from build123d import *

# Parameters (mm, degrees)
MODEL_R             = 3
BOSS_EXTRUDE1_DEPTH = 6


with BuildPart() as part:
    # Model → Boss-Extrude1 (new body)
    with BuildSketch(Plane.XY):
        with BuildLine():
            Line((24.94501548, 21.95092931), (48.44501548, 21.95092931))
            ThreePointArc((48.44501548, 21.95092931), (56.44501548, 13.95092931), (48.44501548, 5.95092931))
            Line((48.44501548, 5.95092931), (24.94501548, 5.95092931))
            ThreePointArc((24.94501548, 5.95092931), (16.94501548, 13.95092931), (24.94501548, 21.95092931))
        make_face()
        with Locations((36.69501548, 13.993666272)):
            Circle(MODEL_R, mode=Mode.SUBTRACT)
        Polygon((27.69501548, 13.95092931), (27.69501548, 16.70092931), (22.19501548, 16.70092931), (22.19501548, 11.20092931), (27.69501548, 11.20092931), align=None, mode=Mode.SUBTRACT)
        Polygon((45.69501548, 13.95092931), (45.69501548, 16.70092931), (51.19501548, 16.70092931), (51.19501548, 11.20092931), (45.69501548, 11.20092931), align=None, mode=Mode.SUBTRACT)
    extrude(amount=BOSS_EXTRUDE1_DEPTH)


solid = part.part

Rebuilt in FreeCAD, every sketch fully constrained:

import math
import FreeCAD as App
import Part
import Sketcher

V = App.Vector
Q = App.Units.Quantity

doc = App.newDocument("Part")
body = doc.addObject("PartDesign::Body", "Body")

# Sketch on XY plane
sketch1 = body.newObject("Sketcher::SketchObject", "Sketch")
sketch1.AttachmentSupport = (doc.getObject("XY_Plane"), [""])
sketch1.MapMode = "FlatFace"
sketch1.addGeometry(Part.LineSegment(V(48.4, 22, 0), V(24.9, 22, 0)), False)
sketch1.addGeometry(Part.ArcOfCircle(Part.Circle(V(24.9, 14, 0), V(0, 0, 1), 8), math.radians(90), math.radians(270)), False)
sketch1.addGeometry(Part.LineSegment(V(24.9, 6, 0), V(48.4, 6, 0)), False)
sketch1.addGeometry(Part.ArcOfCircle(Part.Circle(V(48.4, 14, 0), V(0, 0, 1), 8), math.radians(-90), math.radians(90)), False)
sketch1.addGeometry(Part.LineSegment(V(45.7, 16.7, 0), V(51.2, 16.7, 0)), False)
sketch1.addGeometry(Part.LineSegment(V(51.2, 16.7, 0), V(51.2, 11.2, 0)), False)
sketch1.addGeometry(Part.LineSegment(V(51.2, 11.2, 0), V(45.7, 11.2, 0)), False)
sketch1.addGeometry(Part.LineSegment(V(45.7, 11.2, 0), V(45.7, 16.7, 0)), False)
sketch1.addGeometry(Part.LineSegment(V(27.7, 11.2, 0), V(22.2, 11.2, 0)), False)
sketch1.addGeometry(Part.LineSegment(V(22.2, 11.2, 0), V(22.2, 16.7, 0)), False)
sketch1.addGeometry(Part.LineSegment(V(22.2, 16.7, 0), V(27.7, 16.7, 0)), False)
sketch1.addGeometry(Part.LineSegment(V(27.7, 16.7, 0), V(27.7, 11.2, 0)), False)
sketch1.addGeometry(Part.Circle(V(36.7, 14, 0), V(0, 0, 1), 3), False)
sketch1.addConstraint(Sketcher.Constraint("Tangent", 0, 2, 1, 1))
sketch1.addConstraint(Sketcher.Constraint("Tangent", 1, 2, 2, 1))
sketch1.addConstraint(Sketcher.Constraint("Tangent", 2, 2, 3, 1))
sketch1.addConstraint(Sketcher.Constraint("Tangent", 3, 2, 0, 1))
sketch1.addConstraint(Sketcher.Constraint("Coincident", 4, 2, 5, 1))
sketch1.addConstraint(Sketcher.Constraint("Coincident", 5, 2, 6, 1))
sketch1.addConstraint(Sketcher.Constraint("Coincident", 6, 2, 7, 1))
sketch1.addConstraint(Sketcher.Constraint("Coincident", 7, 2, 4, 1))
sketch1.addConstraint(Sketcher.Constraint("Coincident", 8, 2, 9, 1))
sketch1.addConstraint(Sketcher.Constraint("Coincident", 9, 2, 10, 1))
sketch1.addConstraint(Sketcher.Constraint("Coincident", 10, 2, 11, 1))
sketch1.addConstraint(Sketcher.Constraint("Coincident", 11, 2, 8, 1))
sketch1.addConstraint(Sketcher.Constraint("Horizontal", 0))
sketch1.addConstraint(Sketcher.Constraint("Horizontal", 2))
sketch1.addConstraint(Sketcher.Constraint("Horizontal", 4))
sketch1.addConstraint(Sketcher.Constraint("Vertical", 5))
sketch1.addConstraint(Sketcher.Constraint("Horizontal", 6))
sketch1.addConstraint(Sketcher.Constraint("Vertical", 7))
sketch1.addConstraint(Sketcher.Constraint("Horizontal", 8))
sketch1.addConstraint(Sketcher.Constraint("Vertical", 9))
sketch1.addConstraint(Sketcher.Constraint("Horizontal", 10))
sketch1.addConstraint(Sketcher.Constraint("Vertical", 11))
sketch1.addConstraint(Sketcher.Constraint("Horizontal", 6, 2, 8, 2))
sketch1.addConstraint(Sketcher.Constraint("Horizontal", 7, 2, 9, 2))
sketch1.addConstraint(Sketcher.Constraint("Equal", 6, 8))
sketch1.addConstraint(Sketcher.Constraint("Equal", 10, 5))
sketch1.addConstraint(Sketcher.Constraint("Diameter", 12, Q("6 mm")))
sketch1.addConstraint(Sketcher.Constraint("Radius", 1, Q("8 mm")))
sketch1.addConstraint(Sketcher.Constraint("DistanceX", 0, 2, 0, 1, Q("23.5 mm")))
sketch1.addConstraint(Sketcher.Constraint("DistanceX", 4, 1, 4, 2, Q("5.5 mm")))
sketch1.addConstraint(Sketcher.Constraint("DistanceX", 12, 3, 6, 2, Q("9 mm")))
sketch1.addConstraint(Sketcher.Constraint("DistanceX", 10, 2, 12, 3, Q("9 mm")))
sketch1.addConstraint(Sketcher.Constraint("DistanceX", 12, 3, 3, 3, Q("11.75 mm")))
sketch1.addConstraint(Sketcher.Constraint("DistanceY", 3, 3, 4, 2, Q("2.75 mm")))
sketch1.addConstraint(Sketcher.Constraint("DistanceY", -1, 1, 1, 3, Q("13.950929 mm")))
sketch1.addConstraint(Sketcher.Constraint("DistanceX", -1, 1, 1, 3, Q("24.945015 mm")))
sketch1.addConstraint(Sketcher.Constraint("DistanceY", -1, 1, 12, 3, Q("13.993666 mm")))
pad1 = body.newObject("PartDesign::Pad", "Pad")
pad1.Profile = sketch1
pad1.Length = 6

doc.recompute()
